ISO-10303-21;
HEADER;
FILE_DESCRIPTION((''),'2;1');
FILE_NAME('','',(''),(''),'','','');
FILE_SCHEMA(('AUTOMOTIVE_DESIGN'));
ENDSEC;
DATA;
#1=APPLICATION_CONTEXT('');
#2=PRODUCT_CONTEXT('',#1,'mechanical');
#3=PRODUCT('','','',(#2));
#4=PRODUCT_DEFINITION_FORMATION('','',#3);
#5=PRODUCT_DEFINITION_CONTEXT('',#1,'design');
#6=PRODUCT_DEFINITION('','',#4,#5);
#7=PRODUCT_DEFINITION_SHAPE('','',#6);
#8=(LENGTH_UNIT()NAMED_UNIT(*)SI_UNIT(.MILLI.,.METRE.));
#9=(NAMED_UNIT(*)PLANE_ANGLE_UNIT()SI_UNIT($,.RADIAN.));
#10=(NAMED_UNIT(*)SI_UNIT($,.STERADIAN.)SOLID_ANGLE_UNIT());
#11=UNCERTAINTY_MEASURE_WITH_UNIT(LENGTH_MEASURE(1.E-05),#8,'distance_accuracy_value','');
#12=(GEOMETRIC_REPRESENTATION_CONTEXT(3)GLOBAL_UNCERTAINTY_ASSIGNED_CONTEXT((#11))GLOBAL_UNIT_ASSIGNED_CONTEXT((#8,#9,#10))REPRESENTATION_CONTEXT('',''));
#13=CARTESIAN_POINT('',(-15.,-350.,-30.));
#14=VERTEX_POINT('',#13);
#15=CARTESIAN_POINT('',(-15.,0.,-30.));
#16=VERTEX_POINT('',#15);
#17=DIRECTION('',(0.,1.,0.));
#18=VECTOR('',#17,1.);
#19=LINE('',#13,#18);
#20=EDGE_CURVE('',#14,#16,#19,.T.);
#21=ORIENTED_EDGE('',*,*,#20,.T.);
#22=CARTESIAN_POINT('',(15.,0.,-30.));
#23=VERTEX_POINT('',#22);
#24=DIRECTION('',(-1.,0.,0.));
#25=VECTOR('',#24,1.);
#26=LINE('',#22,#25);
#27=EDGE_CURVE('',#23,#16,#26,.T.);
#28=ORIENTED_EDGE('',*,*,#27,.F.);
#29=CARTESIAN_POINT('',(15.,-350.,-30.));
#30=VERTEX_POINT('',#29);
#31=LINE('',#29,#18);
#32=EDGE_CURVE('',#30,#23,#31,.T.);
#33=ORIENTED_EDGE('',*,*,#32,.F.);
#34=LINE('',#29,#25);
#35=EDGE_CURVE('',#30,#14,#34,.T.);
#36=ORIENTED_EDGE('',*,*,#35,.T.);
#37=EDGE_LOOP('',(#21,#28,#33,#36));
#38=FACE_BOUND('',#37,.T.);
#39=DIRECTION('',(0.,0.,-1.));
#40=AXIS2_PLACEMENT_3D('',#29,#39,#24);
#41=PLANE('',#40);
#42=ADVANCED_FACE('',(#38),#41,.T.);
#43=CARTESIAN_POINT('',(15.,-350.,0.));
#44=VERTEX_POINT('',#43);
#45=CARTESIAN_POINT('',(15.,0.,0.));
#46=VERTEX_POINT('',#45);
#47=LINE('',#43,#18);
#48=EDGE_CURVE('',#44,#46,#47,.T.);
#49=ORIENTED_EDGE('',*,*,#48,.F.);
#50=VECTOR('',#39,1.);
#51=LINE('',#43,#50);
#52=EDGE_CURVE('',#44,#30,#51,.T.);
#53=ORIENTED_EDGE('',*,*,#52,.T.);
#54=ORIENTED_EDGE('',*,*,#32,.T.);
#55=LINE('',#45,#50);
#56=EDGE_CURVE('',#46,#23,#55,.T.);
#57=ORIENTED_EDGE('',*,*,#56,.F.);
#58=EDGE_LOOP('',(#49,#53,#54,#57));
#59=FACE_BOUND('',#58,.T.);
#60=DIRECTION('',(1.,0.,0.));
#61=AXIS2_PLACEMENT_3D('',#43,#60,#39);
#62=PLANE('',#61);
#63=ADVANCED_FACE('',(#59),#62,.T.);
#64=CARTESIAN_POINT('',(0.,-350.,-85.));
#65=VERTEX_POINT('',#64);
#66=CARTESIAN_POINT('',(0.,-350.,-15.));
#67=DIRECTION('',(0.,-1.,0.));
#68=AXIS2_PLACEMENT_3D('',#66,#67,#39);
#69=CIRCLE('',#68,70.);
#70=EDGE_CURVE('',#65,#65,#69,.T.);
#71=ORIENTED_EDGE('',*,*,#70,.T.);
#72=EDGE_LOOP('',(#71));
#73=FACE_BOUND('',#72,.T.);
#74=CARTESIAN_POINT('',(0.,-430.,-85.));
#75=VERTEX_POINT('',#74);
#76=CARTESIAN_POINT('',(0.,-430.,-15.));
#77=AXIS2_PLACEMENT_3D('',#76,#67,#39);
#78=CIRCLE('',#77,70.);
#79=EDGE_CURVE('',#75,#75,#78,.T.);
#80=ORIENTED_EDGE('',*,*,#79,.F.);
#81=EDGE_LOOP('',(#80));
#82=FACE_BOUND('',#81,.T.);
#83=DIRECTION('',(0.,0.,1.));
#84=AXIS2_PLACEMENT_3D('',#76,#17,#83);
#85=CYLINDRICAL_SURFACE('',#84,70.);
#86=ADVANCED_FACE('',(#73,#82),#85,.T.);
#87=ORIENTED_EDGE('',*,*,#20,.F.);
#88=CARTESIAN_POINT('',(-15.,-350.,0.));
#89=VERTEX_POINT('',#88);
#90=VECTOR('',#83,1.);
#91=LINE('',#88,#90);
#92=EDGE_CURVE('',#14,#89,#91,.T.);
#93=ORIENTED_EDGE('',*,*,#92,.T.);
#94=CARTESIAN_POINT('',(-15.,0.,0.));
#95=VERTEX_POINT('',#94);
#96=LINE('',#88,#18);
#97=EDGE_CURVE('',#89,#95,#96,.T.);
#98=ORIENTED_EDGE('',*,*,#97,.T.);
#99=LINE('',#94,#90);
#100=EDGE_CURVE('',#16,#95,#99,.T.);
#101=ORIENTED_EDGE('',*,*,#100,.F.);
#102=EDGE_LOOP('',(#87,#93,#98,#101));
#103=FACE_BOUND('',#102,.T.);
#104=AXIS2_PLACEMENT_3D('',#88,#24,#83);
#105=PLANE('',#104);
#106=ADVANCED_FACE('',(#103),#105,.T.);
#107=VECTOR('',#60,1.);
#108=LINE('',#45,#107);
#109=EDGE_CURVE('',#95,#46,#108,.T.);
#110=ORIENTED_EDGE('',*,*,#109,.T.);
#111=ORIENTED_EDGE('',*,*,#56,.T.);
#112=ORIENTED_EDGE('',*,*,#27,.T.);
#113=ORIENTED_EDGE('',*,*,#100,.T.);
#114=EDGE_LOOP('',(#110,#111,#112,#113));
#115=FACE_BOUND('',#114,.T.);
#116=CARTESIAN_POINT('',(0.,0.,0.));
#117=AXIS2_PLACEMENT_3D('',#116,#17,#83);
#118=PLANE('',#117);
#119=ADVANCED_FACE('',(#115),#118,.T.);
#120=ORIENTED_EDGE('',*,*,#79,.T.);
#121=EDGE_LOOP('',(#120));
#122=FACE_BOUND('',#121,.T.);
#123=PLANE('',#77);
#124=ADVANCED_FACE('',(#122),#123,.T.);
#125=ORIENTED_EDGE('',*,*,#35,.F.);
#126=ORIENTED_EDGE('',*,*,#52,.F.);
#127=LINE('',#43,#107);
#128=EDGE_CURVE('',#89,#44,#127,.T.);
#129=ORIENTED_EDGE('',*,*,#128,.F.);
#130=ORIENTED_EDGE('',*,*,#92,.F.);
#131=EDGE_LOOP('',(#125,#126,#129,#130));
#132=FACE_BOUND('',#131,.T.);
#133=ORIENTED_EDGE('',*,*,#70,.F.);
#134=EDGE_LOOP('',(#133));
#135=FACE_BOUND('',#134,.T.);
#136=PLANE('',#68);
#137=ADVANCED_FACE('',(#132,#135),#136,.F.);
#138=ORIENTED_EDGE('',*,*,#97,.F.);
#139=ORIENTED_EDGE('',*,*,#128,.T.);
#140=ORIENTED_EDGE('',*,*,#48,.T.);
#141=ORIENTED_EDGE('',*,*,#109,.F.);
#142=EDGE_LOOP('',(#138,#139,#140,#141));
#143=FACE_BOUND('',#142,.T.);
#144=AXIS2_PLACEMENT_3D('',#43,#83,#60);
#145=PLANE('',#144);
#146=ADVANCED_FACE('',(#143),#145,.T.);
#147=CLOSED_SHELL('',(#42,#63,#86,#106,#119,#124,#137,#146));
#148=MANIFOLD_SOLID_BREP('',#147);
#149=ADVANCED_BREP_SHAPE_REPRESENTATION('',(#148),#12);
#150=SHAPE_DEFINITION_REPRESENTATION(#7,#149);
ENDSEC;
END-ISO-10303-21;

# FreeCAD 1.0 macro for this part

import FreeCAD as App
import Part
import Sketcher
Q = App.Units.Quantity

doc = App.newDocument("Part")
body = doc.addObject("PartDesign::Body", "Body")

# Sketch on XZ plane
sketch1 = body.newObject("Sketcher::SketchObject", "Sketch")
sketch1.AttachmentSupport = (doc.getObject("XZ_Plane"), [""])
sketch1.MapMode = "FlatFace"
sketch1.addGeometry([
    Part.LineSegment(App.Vector(-15, -30, 0), App.Vector(-15, 0, 0)),
    Part.LineSegment(App.Vector(-15, 0, 0), App.Vector(15, 0, 0)),
    Part.LineSegment(App.Vector(15, 0, 0), App.Vector(15, -30, 0)),
    Part.LineSegment(App.Vector(15, -30, 0), App.Vector(-15, -30, 0)),
], False)
sketch1.addConstraint([
    Sketcher.Constraint("Coincident", 0, 2, 1, 1),
    Sketcher.Constraint("Coincident", 1, 2, 2, 1),
    Sketcher.Constraint("Coincident", 2, 2, 3, 1),
    Sketcher.Constraint("Coincident", 3, 2, 0, 1),
    Sketcher.Constraint("Vertical", 0),
    Sketcher.Constraint("Horizontal", 1),
    Sketcher.Constraint("Vertical", 2),
    Sketcher.Constraint("Horizontal", 3),
    Sketcher.Constraint("Symmetric", 0, 2, 1, 2, -1, 1),
    Sketcher.Constraint("Equal", 3, 0),
    Sketcher.Constraint("DistanceX", 1, 1, 1, 2, Q("30 mm")),
])
pad1 = body.newObject("PartDesign::Pad", "Pad")
pad1.Profile = sketch1
pad1.Length = 350

# Sketch on XZ plane
sketch2 = body.newObject("Sketcher::SketchObject", "Sketch001")
sketch2.AttachmentSupport = (doc.getObject("XZ_Plane"), [""])
sketch2.MapMode = "FlatFace"
sketch2.AttachmentOffset = App.Placement(App.Vector(0, 0, 350), App.Rotation())
sketch2.addGeometry(Part.Circle(App.Vector(0, -15, 0), App.Vector(0, 0, 1), 70), False)
sketch2.addConstraint([
    Sketcher.Constraint("PointOnObject", 0, 3, -2),
    Sketcher.Constraint("Diameter", 0, Q("140 mm")),
    Sketcher.Constraint("DistanceY", 0, 3, -1, 1, Q("15 mm")),
])
pad2 = body.newObject("PartDesign::Pad", "Pad001")
pad2.Profile = sketch2
pad2.Length = 80

doc.recompute()
